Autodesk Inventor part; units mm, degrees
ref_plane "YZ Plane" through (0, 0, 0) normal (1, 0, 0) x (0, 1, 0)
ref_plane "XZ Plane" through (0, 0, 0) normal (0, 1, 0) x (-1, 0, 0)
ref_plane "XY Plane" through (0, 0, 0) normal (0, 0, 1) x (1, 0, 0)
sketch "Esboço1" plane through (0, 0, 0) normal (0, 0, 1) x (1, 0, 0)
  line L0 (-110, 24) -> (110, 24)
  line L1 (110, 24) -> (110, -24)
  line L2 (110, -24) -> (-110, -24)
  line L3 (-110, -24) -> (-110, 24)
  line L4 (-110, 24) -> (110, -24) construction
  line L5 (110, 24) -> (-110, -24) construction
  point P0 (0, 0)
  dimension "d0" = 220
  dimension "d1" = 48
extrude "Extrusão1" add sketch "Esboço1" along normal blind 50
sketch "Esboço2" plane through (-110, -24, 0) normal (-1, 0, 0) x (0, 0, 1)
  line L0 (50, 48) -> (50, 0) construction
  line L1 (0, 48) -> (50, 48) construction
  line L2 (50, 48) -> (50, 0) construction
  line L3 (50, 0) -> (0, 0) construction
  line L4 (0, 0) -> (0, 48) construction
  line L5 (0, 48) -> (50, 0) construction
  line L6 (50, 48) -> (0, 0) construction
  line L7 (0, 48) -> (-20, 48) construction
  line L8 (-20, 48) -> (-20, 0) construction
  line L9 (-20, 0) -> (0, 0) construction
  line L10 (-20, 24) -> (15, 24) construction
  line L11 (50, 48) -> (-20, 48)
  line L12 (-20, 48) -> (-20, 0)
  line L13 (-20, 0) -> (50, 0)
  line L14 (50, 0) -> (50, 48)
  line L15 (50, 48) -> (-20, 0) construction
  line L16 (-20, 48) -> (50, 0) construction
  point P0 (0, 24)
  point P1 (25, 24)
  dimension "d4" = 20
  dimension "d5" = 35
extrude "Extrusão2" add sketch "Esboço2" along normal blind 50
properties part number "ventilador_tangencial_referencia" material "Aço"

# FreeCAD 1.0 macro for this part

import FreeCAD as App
import Part
import Sketcher

doc = App.newDocument("Part")
params = doc.addObject("Spreadsheet::Sheet", "Params")
for row, (alias, value) in enumerate([
    ("sketch1_width", "220 mm"),
    ("sketch1_height", "48 mm"),
    ("pad1_length", "50 mm"),
    ("sketch2_width", "48 mm"),
    ("sketch2_height", "70 mm"),
    ("pad2_length", "50 mm"),
], start=1):
    params.set(f"A{row}", alias)
    params.set(f"B{row}", "=" + value)
    params.setAlias(f"B{row}", alias)

body = doc.addObject("PartDesign::Body", "Body")

# Sketch on XY plane
sketch1 = doc.addObject("Sketcher::SketchObject", "Sketch")
body.addObject(sketch1)
sketch1.AttachmentSupport = (doc.XY_Plane, [""])
sketch1.MapMode = "FlatFace"
sketch1.addGeometry([
    Part.LineSegment(App.Vector(110, 24, 0), App.Vector(-110, 24, 0)),
    Part.LineSegment(App.Vector(-110, 24, 0), App.Vector(-110, -24, 0)),
    Part.LineSegment(App.Vector(-110, -24, 0), App.Vector(110, -24, 0)),
    Part.LineSegment(App.Vector(110, -24, 0), App.Vector(110, 24, 0)),
], False)
sketch1.addConstraint([
    Sketcher.Constraint("Coincident", 0, 2, 1, 1),
    Sketcher.Constraint("Coincident", 1, 2, 2, 1),
    Sketcher.Constraint("Coincident", 2, 2, 3, 1),
    Sketcher.Constraint("Coincident", 3, 2, 0, 1),
    Sketcher.Constraint("Horizontal", 0),
    Sketcher.Constraint("Vertical", 1),
    Sketcher.Constraint("Horizontal", 2),
    Sketcher.Constraint("Vertical", 3),
    Sketcher.Constraint("Symmetric", 0, 2, 2, 2, -1, 1),
    Sketcher.Constraint("DistanceX", 0, 2, 0, 1, 220.0),
    Sketcher.Constraint("DistanceY", 1, 2, 1, 1, 48.0),
])
sketch1.setExpression("Constraints[9]", "Params.sketch1_width")
sketch1.setExpression("Constraints[10]", "Params.sketch1_height")
pad1 = doc.addObject("PartDesign::Pad", "Pad")
body.addObject(pad1)
pad1.Profile = sketch1
pad1.setExpression("Length", "Params.pad1_length")

# Sketch on YZ plane
sketch2 = doc.addObject("Sketcher::SketchObject", "Sketch001")
body.addObject(sketch2)
sketch2.AttachmentSupport = (doc.YZ_Plane, [""])
sketch2.MapMode = "FlatFace"
sketch2.AttachmentOffset = App.Placement(App.Vector(0, 0, -110), App.Rotation())
sketch2.addGeometry([
    Part.LineSegment(App.Vector(-24, 50, 0), App.Vector(24, 50, 0)),
    Part.LineSegment(App.Vector(24, 50, 0), App.Vector(24, -20, 0)),
    Part.LineSegment(App.Vector(24, -20, 0), App.Vector(-24, -20, 0)),
    Part.LineSegment(App.Vector(-24, -20, 0), App.Vector(-24, 50, 0)),
], False)
sketch2.addConstraint([
    Sketcher.Constraint("Coincident", 0, 2, 1, 1),
    Sketcher.Constraint("Coincident", 1, 2, 2, 1),
    Sketcher.Constraint("Coincident", 2, 2, 3, 1),
    Sketcher.Constraint("Coincident", 3, 2, 0, 1),
    Sketcher.Constraint("Horizontal", 0),
    Sketcher.Constraint("Vertical", 1),
    Sketcher.Constraint("Horizontal", 2),
    Sketcher.Constraint("Vertical", 3),
    Sketcher.Constraint("DistanceY", 1, 2, -1, 1, 20.0),
    Sketcher.Constraint("DistanceX", 0, 1, 0, 2, 48.0),
    Sketcher.Constraint("DistanceY", 1, 2, 1, 1, 70.0),
    Sketcher.Constraint("DistanceX", -1, 1, 0, 2, 24.0),
])
sketch2.setExpression("Constraints[9]", "Params.sketch2_width")
sketch2.setExpression("Constraints[10]", "Params.sketch2_height")
pad2 = doc.addObject("PartDesign::Pad", "Pad001")
body.addObject(pad2)
pad2.Profile = sketch2
pad2.setExpression("Length", "Params.pad2_length")
pad2.Reversed = True

doc.recompute()
